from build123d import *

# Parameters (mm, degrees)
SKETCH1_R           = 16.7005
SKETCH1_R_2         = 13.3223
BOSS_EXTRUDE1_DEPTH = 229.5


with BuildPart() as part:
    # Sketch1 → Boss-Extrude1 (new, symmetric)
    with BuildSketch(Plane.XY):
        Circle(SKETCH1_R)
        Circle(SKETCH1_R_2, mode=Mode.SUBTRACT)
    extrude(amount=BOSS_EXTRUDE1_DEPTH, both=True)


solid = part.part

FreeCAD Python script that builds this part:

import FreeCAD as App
import Part
import Sketcher

V = App.Vector
Q = App.Units.Quantity

doc = App.newDocument("Part")
body = doc.addObject("PartDesign::Body", "Body")

# Sketch on XY plane
sketch1 = body.newObject("Sketcher::SketchObject", "Sketch")
sketch1.AttachmentSupport = (doc.getObject("XY_Plane"), [""])
sketch1.MapMode = "FlatFace"
sketch1.addGeometry([
    Part.Circle(V(0, 0, 0), V(0, 0, 1), 17),
    Part.Circle(V(0, 0, 0), V(0, 0, 1), 13),
], False)
sketch1.addConstraint([
    Sketcher.Constraint("Coincident", 0, 3, -1, 1),
    Sketcher.Constraint("Coincident", 1, 3, -1, 1),
    Sketcher.Constraint("Diameter", 0, Q("1.315 in")),
    Sketcher.Constraint("Diameter", 1, Q("1.049 in")),
])
pad1 = body.newObject("PartDesign::Pad", "Pad")
pad1.Profile = sketch1
pad1.Length = 459
pad1.Midplane = True

doc.recompute()
